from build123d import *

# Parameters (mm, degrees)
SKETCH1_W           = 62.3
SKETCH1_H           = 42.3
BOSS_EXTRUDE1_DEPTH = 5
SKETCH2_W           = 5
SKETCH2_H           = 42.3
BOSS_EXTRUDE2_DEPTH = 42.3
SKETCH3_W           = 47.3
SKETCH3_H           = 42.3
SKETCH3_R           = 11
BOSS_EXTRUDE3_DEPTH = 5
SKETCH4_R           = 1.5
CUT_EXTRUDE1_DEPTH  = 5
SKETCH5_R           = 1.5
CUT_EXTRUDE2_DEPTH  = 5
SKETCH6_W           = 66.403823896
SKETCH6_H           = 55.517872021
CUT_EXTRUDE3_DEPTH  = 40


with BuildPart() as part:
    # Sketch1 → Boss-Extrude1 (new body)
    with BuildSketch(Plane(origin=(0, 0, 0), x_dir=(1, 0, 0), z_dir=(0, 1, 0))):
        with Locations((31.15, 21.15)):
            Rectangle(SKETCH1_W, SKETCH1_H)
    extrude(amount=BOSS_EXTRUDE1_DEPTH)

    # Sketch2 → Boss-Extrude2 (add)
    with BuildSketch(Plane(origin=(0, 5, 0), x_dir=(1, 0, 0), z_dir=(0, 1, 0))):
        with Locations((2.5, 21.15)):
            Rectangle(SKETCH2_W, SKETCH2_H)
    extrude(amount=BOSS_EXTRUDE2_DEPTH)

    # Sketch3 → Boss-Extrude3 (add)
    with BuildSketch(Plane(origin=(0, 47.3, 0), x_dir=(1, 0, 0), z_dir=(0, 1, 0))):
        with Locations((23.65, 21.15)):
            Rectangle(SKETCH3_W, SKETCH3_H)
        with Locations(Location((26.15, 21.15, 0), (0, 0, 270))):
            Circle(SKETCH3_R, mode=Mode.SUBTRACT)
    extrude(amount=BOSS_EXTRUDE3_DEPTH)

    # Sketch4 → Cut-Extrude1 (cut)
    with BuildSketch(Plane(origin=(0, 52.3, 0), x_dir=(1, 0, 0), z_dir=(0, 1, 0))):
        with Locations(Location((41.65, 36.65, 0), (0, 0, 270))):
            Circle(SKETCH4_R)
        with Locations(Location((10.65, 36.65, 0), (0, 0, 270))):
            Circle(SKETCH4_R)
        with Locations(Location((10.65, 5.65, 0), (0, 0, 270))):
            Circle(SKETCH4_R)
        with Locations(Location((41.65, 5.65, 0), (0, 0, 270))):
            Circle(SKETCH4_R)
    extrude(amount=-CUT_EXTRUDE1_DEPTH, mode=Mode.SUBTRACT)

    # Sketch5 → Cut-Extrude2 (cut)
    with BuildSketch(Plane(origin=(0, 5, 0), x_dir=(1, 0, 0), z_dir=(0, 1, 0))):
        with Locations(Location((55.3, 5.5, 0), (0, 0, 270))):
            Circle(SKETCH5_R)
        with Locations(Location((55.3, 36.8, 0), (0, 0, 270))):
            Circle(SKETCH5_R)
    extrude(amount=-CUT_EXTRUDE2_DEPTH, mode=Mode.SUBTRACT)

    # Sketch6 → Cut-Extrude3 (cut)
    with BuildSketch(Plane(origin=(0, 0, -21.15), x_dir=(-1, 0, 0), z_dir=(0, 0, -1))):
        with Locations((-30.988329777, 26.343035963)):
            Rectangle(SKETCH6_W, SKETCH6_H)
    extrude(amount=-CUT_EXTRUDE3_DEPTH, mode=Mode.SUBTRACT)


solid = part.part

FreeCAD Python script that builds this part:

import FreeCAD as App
import Part
import Sketcher
from FreeCAD import Vector
Q = App.Units.Quantity

doc = App.newDocument("Part")
body = doc.addObject("PartDesign::Body", "Body")

sketch1 = body.newObject("Sketcher::SketchObject", "Sketch")
sketch1.AttachmentSupport = (doc.getObject("XZ_Plane"), [""])
sketch1.MapMode = "FlatFace"
sketch1.addGeometry([
    Part.LineSegment(Vector(0, -42.3, 0), Vector(0, 0, 0)),
    Part.LineSegment(Vector(0, 0, 0), Vector(62.3, 0, 0)),
    Part.LineSegment(Vector(62.3, 0, 0), Vector(62.3, -42.3, 0)),
    Part.LineSegment(Vector(62.3, -42.3, 0), Vector(0, -42.3, 0)),
], False)
sketch1.addConstraint([
    Sketcher.Constraint("Coincident", 0, 2, 1, 1),
    Sketcher.Constraint("Coincident", 1, 2, 2, 1),
    Sketcher.Constraint("Coincident", 2, 2, 3, 1),
    Sketcher.Constraint("Coincident", 3, 2, 0, 1),
    Sketcher.Constraint("Vertical", 0),
    Sketcher.Constraint("Horizontal", 1),
    Sketcher.Constraint("Vertical", 2),
    Sketcher.Constraint("Horizontal", 3),
    Sketcher.Constraint("Coincident", 0, 2, -1, 1),
    Sketcher.Constraint("DistanceX", 1, 1, 1, 2, Q("62.3 mm")),
    Sketcher.Constraint("DistanceY", 0, 1, 0, 2, Q("42.3 mm")),
])
pad1 = body.newObject("PartDesign::Pad", "Pad")
pad1.Profile = sketch1
pad1.Length = 5
pad1.Reversed = True

sketch2 = body.newObject("Sketcher::SketchObject", "Sketch001")
sketch2.AttachmentSupport = (doc.getObject("XZ_Plane"), [""])
sketch2.MapMode = "FlatFace"
sketch2.AttachmentOffset = App.Placement(Vector(0, 0, -5), App.Rotation())
sketch2.addGeometry([
    Part.LineSegment(Vector(0, -42.3, 0), Vector(0, 0, 0)),
    Part.LineSegment(Vector(0, 0, 0), Vector(5, 0, 0)),
    Part.LineSegment(Vector(5, 0, 0), Vector(5, -42.3, 0)),
    Part.LineSegment(Vector(5, -42.3, 0), Vector(0, -42.3, 0)),
], False)
sketch2.addConstraint([
    Sketcher.Constraint("Coincident", 0, 2, 1, 1),
    Sketcher.Constraint("Coincident", 1, 2, 2, 1),
    Sketcher.Constraint("Coincident", 2, 2, 3, 1),
    Sketcher.Constraint("Coincident", 3, 2, 0, 1),
    Sketcher.Constraint("Vertical", 0),
    Sketcher.Constraint("Horizontal", 1),
    Sketcher.Constraint("Vertical", 2),
    Sketcher.Constraint("Horizontal", 3),
    Sketcher.Constraint("Coincident", 0, 2, -1, 1),
    Sketcher.Constraint("DistanceX", 1, 1, 1, 2, Q("5 mm")),
    Sketcher.Constraint("DistanceY", 0, 1, 0, 2, Q("42.3 mm")),
])
pad2 = body.newObject("PartDesign::Pad", "Pad001")
pad2.Profile = sketch2
pad2.Length = 42.3
pad2.Reversed = True

sketch3 = body.newObject("Sketcher::SketchObject", "Sketch002")
sketch3.AttachmentSupport = (doc.getObject("XZ_Plane"), [""])
sketch3.MapMode = "FlatFace"
sketch3.AttachmentOffset = App.Placement(Vector(0, 0, -47.3), App.Rotation())
sketch3.addGeometry([
    Part.LineSegment(Vector(0, -42.3, 0), Vector(0, 0, 0)),
    Part.LineSegment(Vector(0, 0, 0), Vector(47.3, 0, 0)),
    Part.LineSegment(Vector(47.3, 0, 0), Vector(47.3, -42.3, 0)),
    Part.LineSegment(Vector(47.3, -42.3, 0), Vector(0, -42.3, 0)),
    Part.Circle(Vector(26.15, -21.15, 0), Vector(0, 0, 1), 11),
], False)
sketch3.addConstraint([
    Sketcher.Constraint("Coincident", 0, 2, 1, 1),
    Sketcher.Constraint("Coincident", 1, 2, 2, 1),
    Sketcher.Constraint("Coincident", 2, 2, 3, 1),
    Sketcher.Constraint("Coincident", 3, 2, 0, 1),
    Sketcher.Constraint("Vertical", 0),
    Sketcher.Constraint("Horizontal", 1),
    Sketcher.Constraint("Vertical", 2),
    Sketcher.Constraint("Horizontal", 3),
    Sketcher.Constraint("Coincident", 0, 2, -1, 1),
    Sketcher.Constraint("Diameter", 4, Q("22 mm")),
    Sketcher.Constraint("DistanceX", 1, 1, 1, 2, Q("47.3 mm")),
    Sketcher.Constraint("DistanceY", 0, 1, 0, 2, Q("42.3 mm")),
    Sketcher.Constraint("DistanceX", -1, 1, 4, 3, Q("26.15 mm")),
    Sketcher.Constraint("DistanceY", 4, 3, -1, 1, Q("21.15 mm")),
])
pad3 = body.newObject("PartDesign::Pad", "Pad002")
pad3.Profile = sketch3
pad3.Length = 5
pad3.Reversed = True

sketch4 = body.newObject("Sketcher::SketchObject", "Sketch003")
sketch4.AttachmentSupport = (doc.getObject("XZ_Plane"), [""])
sketch4.MapMode = "FlatFace"
sketch4.AttachmentOffset = App.Placement(Vector(0, 0, -52.3), App.Rotation())
sketch4.addGeometry([
    Part.Circle(Vector(41.65, -36.65, 0), Vector(0, 0, 1), 1.5),
    Part.Circle(Vector(10.65, -36.65, 0), Vector(0, 0, 1), 1.5),
    Part.Circle(Vector(10.65, -5.65, 0), Vector(0, 0, 1), 1.5),
    Part.Circle(Vector(41.65, -5.65, 0), Vector(0, 0, 1), 1.5),
], False)
sketch4.addConstraint([
    Sketcher.Constraint("Equal", 0, 1),
    Sketcher.Constraint("Equal", 1, 2),
    Sketcher.Constraint("Equal", 2, 3),
    Sketcher.Constraint("Horizontal", 0, 3, 1, 3),
    Sketcher.Constraint("Horizontal", 2, 3, 3, 3),
    Sketcher.Constraint("Vertical", 1, 3, 2, 3),
    Sketcher.Constraint("Vertical", 0, 3, 3, 3),
    Sketcher.Constraint("Diameter", 0, Q("3 mm")),
    Sketcher.Constraint("DistanceX", 1, 3, 0, 3, Q("31 mm")),
    Sketcher.Constraint("DistanceY", 1, 3, 2, 3, Q("31 mm")),
    Sketcher.Constraint("DistanceX", -1, 1, 0, 3, Q("41.65 mm")),
    Sketcher.Constraint("DistanceY", 0, 3, -1, 1, Q("36.65 mm")),
])
pocket1 = body.newObject("PartDesign::Pocket", "Pocket")
pocket1.Profile = sketch4
pocket1.Length = 5
pocket1.Reversed = True

sketch5 = body.newObject("Sketcher::SketchObject", "Sketch004")
sketch5.AttachmentSupport = (doc.getObject("XZ_Plane"), [""])
sketch5.MapMode = "FlatFace"
sketch5.AttachmentOffset = App.Placement(Vector(0, 0, -5), App.Rotation())
sketch5.addGeometry([
    Part.Circle(Vector(55.3, -5.5, 0), Vector(0, 0, 1), 1.5),
    Part.Circle(Vector(55.3, -36.8, 0), Vector(0, 0, 1), 1.5),
], False)
sketch5.addConstraint([
    Sketcher.Constraint("Equal", 0, 1),
    Sketcher.Constraint("Vertical", 0, 3, 1, 3),
    Sketcher.Constraint("Diameter", 0, Q("3 mm")),
    Sketcher.Constraint("DistanceX", -1, 1, 0, 3, Q("55.3 mm")),
    Sketcher.Constraint("DistanceY", 0, 3, -1, 1, Q("5.5 mm")),
    Sketcher.Constraint("DistanceY", 1, 3, -1, 1, Q("36.8 mm")),
])
pocket2 = body.newObject("PartDesign::Pocket", "Pocket001")
pocket2.Profile = sketch5
pocket2.Length = 5
pocket2.Reversed = True

sketch6 = body.newObject("Sketcher::SketchObject", "Sketch005")
sketch6.AttachmentSupport = (doc.getObject("XY_Plane"), [""])
sketch6.MapMode = "FlatFace"
sketch6.AttachmentOffset = App.Placement(Vector(0, 0, -21.15), App.Rotation())
sketch6.addGeometry([
    Part.LineSegment(Vector(64.190242, 54.101972, 0), Vector(64.190242, -1.4159, 0)),
    Part.LineSegment(Vector(64.190242, -1.4159, 0), Vector(-2.213582, -1.4159, 0)),
    Part.LineSegment(Vector(-2.213582, -1.4159, 0), Vector(-2.213582, 54.101972, 0)),
    Part.LineSegment(Vector(-2.213582, 54.101972, 0), Vector(64.190242, 54.101972, 0)),
], False)
sketch6.addConstraint([
    Sketcher.Constraint("Coincident", 0, 2, 1, 1),
    Sketcher.Constraint("Coincident", 1, 2, 2, 1),
    Sketcher.Constraint("Coincident", 2, 2, 3, 1),
    Sketcher.Constraint("Coincident", 3, 2, 0, 1),
    Sketcher.Constraint("Vertical", 0),
    Sketcher.Constraint("Horizontal", 1),
    Sketcher.Constraint("Vertical", 2),
    Sketcher.Constraint("Horizontal", 3),
    Sketcher.Constraint("DistanceY", 0, 2, -1, 1, Q("1.4159 mm")),
    Sketcher.Constraint("DistanceX", 1, 2, 1, 1, Q("66.403824 mm")),
    Sketcher.Constraint("DistanceY", 0, 2, 0, 1, Q("55.517872 mm")),
    Sketcher.Constraint("DistanceX", -1, 1, 0, 2, Q("64.190242 mm")),
])
pocket3 = body.newObject("PartDesign::Pocket", "Pocket002")
pocket3.Profile = sketch6
pocket3.Length = 40
pocket3.Reversed = True

doc.recompute()
